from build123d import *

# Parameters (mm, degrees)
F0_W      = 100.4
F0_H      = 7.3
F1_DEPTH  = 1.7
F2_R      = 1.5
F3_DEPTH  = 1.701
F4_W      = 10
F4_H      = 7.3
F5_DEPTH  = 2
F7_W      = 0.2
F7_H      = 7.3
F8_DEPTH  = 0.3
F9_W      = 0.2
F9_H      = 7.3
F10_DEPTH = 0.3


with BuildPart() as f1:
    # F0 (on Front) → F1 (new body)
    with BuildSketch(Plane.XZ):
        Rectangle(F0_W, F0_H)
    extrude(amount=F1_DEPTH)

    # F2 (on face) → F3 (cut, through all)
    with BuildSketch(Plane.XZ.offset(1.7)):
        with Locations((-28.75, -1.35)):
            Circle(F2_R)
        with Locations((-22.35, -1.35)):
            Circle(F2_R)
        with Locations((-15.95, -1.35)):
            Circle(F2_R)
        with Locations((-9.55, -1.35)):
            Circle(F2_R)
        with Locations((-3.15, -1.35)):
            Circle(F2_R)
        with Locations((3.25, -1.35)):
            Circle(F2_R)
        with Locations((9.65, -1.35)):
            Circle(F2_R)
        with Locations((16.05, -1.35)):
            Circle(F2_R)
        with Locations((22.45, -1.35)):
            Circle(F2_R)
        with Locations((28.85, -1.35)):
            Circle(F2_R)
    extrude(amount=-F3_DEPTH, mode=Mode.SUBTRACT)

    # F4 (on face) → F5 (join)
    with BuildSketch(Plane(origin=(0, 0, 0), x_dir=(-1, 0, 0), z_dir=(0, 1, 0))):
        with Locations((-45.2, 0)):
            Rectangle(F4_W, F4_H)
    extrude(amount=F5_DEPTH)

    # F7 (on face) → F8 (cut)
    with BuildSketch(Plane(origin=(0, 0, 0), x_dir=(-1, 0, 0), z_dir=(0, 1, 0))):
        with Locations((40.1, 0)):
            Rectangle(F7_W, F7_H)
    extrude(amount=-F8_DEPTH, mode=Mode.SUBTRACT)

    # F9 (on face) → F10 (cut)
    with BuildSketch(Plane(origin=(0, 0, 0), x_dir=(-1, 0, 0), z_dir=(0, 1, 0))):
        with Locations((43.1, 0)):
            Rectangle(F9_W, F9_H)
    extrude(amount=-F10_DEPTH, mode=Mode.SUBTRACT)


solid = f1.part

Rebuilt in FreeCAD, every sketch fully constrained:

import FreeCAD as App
import Part
import Sketcher

V = App.Vector
Q = App.Units.Quantity

doc = App.newDocument("Part")
params = doc.addObject("Spreadsheet::Sheet", "Params")
for row, (alias, value) in enumerate([
    ("sketch1_width", "100.4 mm"),
    ("sketch1_height", "7.3 mm"),
    ("pad1_length", "1.7 mm"),
    ("sketch2_diameter", "3 mm"),
    ("sketch3_width", "10 mm"),
    ("sketch3_height", "7.3 mm"),
    ("pad2_length", "2 mm"),
    ("sketch4_width", "0.2 mm"),
    ("sketch4_height", "7.3 mm"),
    ("pocket2_length", "0.3 mm"),
    ("sketch5_width", "0.2 mm"),
    ("sketch5_height", "7.3 mm"),
    ("pocket3_length", "0.3 mm"),
], start=1):
    params.set(f"A{row}", alias)
    params.set(f"B{row}", "=" + value)
    params.setAlias(f"B{row}", alias)

body = doc.addObject("PartDesign::Body", "Body")

sketch1 = body.newObject("Sketcher::SketchObject", "Sketch")
sketch1.AttachmentSupport = (doc.getObject("XZ_Plane"), [""])
sketch1.MapMode = "FlatFace"
sketch1.addGeometry([
    Part.LineSegment(V(-50.2, 3.65, 0), V(-50.2, -3.65, 0)),
    Part.LineSegment(V(-50.2, -3.65, 0), V(50.2, -3.65, 0)),
    Part.LineSegment(V(50.2, -3.65, 0), V(50.2, 3.65, 0)),
    Part.LineSegment(V(50.2, 3.65, 0), V(-50.2, 3.65, 0)),
], False)
sketch1.addConstraint([
    Sketcher.Constraint("Coincident", 0, 2, 1, 1),
    Sketcher.Constraint("Coincident", 1, 2, 2, 1),
    Sketcher.Constraint("Coincident", 2, 2, 3, 1),
    Sketcher.Constraint("Coincident", 3, 2, 0, 1),
    Sketcher.Constraint("Vertical", 0),
    Sketcher.Constraint("Horizontal", 1),
    Sketcher.Constraint("Vertical", 2),
    Sketcher.Constraint("Horizontal", 3),
    Sketcher.Constraint("Symmetric", 0, 2, 2, 2, -1, 1),
    Sketcher.Constraint("DistanceX", 1, 1, 1, 2, Q("100.4 mm")),
    Sketcher.Constraint("DistanceY", 0, 2, 0, 1, Q("7.3 mm")),
])
sketch1.setExpression("Constraints[9]", "Params.sketch1_width")
sketch1.setExpression("Constraints[10]", "Params.sketch1_height")
pad1 = body.newObject("PartDesign::Pad", "Pad")
pad1.Profile = sketch1
pad1.setExpression("Length", "Params.pad1_length")

sketch2 = body.newObject("Sketcher::SketchObject", "Sketch001")
sketch2.AttachmentSupport = (doc.getObject("XZ_Plane"), [""])
sketch2.MapMode = "FlatFace"
sketch2.AttachmentOffset = App.Placement(V(0, 0, 1.7), App.Rotation())
sketch2.addGeometry([
    Part.Circle(V(-28.75, -1.35, 0), V(0, 0, 1), 1.5),
    Part.Circle(V(-22.35, -1.35, 0), V(0, 0, 1), 1.5),
    Part.Circle(V(-15.95, -1.35, 0), V(0, 0, 1), 1.5),
    Part.Circle(V(-9.55, -1.35, 0), V(0, 0, 1), 1.5),
    Part.Circle(V(-3.15, -1.35, 0), V(0, 0, 1), 1.5),
    Part.Circle(V(3.25, -1.35, 0), V(0, 0, 1), 1.5),
    Part.Circle(V(9.65, -1.35, 0), V(0, 0, 1), 1.5),
    Part.Circle(V(16.05, -1.35, 0), V(0, 0, 1), 1.5),
    Part.Circle(V(22.45, -1.35, 0), V(0, 0, 1), 1.5),
    Part.Circle(V(28.85, -1.35, 0), V(0, 0, 1), 1.5),
], False)
sketch2.addConstraint([
    Sketcher.Constraint("Equal", 0, 1),
    Sketcher.Constraint("Equal", 1, 2),
    Sketcher.Constraint("Equal", 2, 3),
    Sketcher.Constraint("Equal", 3, 4),
    Sketcher.Constraint("Equal", 4, 5),
    Sketcher.Constraint("Equal", 5, 6),
    Sketcher.Constraint("Equal", 6, 7),
    Sketcher.Constraint("Equal", 7, 8),
    Sketcher.Constraint("Equal", 8, 9),
    Sketcher.Constraint("Horizontal", 0, 3, 1, 3),
    Sketcher.Constraint("Horizontal", 1, 3, 2, 3),
    Sketcher.Constraint("Horizontal", 2, 3, 3, 3),
    Sketcher.Constraint("Horizontal", 3, 3, 4, 3),
    Sketcher.Constraint("Horizontal", 4, 3, 5, 3),
    Sketcher.Constraint("Horizontal", 5, 3, 6, 3),
    Sketcher.Constraint("Horizontal", 6, 3, 7, 3),
    Sketcher.Constraint("Horizontal", 7, 3, 8, 3),
    Sketcher.Constraint("Horizontal", 8, 3, 9, 3),
    Sketcher.Constraint("Diameter", 0, Q("3 mm")),
    Sketcher.Constraint("DistanceX", 0, 3, 5, 3, Q("32 mm")),
    Sketcher.Constraint("DistanceX", 1, 3, 6, 3, Q("32 mm")),
    Sketcher.Constraint("DistanceX", 2, 3, 7, 3, Q("32 mm")),
    Sketcher.Constraint("DistanceX", 3, 3, 8, 3, Q("32 mm")),
    Sketcher.Constraint("DistanceX", 4, 3, 9, 3, Q("32 mm")),
    Sketcher.Constraint("DistanceX", 0, 3, 1, 3, Q("6.4 mm")),
    Sketcher.Constraint("DistanceX", 1, 3, 2, 3, Q("6.4 mm")),
    Sketcher.Constraint("DistanceX", 2, 3, 3, 3, Q("6.4 mm")),
    Sketcher.Constraint("DistanceX", 3, 3, 4, 3, Q("6.4 mm")),
    Sketcher.Constraint("DistanceX", 0, 3, -1, 1, Q("28.75 mm")),
    Sketcher.Constraint("DistanceY", 0, 3, -1, 1, Q("1.35 mm")),
])
sketch2.setExpression("Constraints[18]", "Params.sketch2_diameter")
pocket1 = body.newObject("PartDesign::Pocket", "Pocket")
pocket1.Profile = sketch2
pocket1.Type = "ThroughAll"

sketch3 = body.newObject("Sketcher::SketchObject", "Sketch002")
sketch3.AttachmentSupport = (doc.getObject("XZ_Plane"), [""])
sketch3.MapMode = "FlatFace"
sketch3.addGeometry([
    Part.LineSegment(V(50.2, 3.65, 0), V(50.2, -3.65, 0)),
    Part.LineSegment(V(50.2, -3.65, 0), V(40.2, -3.65, 0)),
    Part.LineSegment(V(40.2, -3.65, 0), V(40.2, 3.65, 0)),
    Part.LineSegment(V(40.2, 3.65, 0), V(50.2, 3.65, 0)),
], False)
sketch3.addConstraint([
    Sketcher.Constraint("Coincident", 0, 2, 1, 1),
    Sketcher.Constraint("Coincident", 1, 2, 2, 1),
    Sketcher.Constraint("Coincident", 2, 2, 3, 1),
    Sketcher.Constraint("Coincident", 3, 2, 0, 1),
    Sketcher.Constraint("Vertical", 0),
    Sketcher.Constraint("Horizontal", 1),
    Sketcher.Constraint("Vertical", 2),
    Sketcher.Constraint("Horizontal", 3),
    Sketcher.Constraint("DistanceX", 1, 2, 1, 1, Q("10 mm")),
    Sketcher.Constraint("DistanceY", 0, 2, 0, 1, Q("7.3 mm")),
    Sketcher.Constraint("DistanceX", -1, 1, 0, 2, Q("50.2 mm")),
    Sketcher.Constraint("DistanceY", 0, 2, -1, 1, Q("3.65 mm")),
])
sketch3.setExpression("Constraints[8]", "Params.sketch3_width")
sketch3.setExpression("Constraints[9]", "Params.sketch3_height")
pad2 = body.newObject("PartDesign::Pad", "Pad001")
pad2.Profile = sketch3
pad2.setExpression("Length", "Params.pad2_length")
pad2.Reversed = True

sketch4 = body.newObject("Sketcher::SketchObject", "Sketch003")
sketch4.AttachmentSupport = (doc.getObject("XZ_Plane"), [""])
sketch4.MapMode = "FlatFace"
sketch4.addGeometry([
    Part.LineSegment(V(-40, 3.65, 0), V(-40, -3.65, 0)),
    Part.LineSegment(V(-40, -3.65, 0), V(-40.2, -3.65, 0)),
    Part.LineSegment(V(-40.2, -3.65, 0), V(-40.2, 3.65, 0)),
    Part.LineSegment(V(-40.2, 3.65, 0), V(-40, 3.65, 0)),
], False)
sketch4.addConstraint([
    Sketcher.Constraint("Coincident", 0, 2, 1, 1),
    Sketcher.Constraint("Coincident", 1, 2, 2, 1),
    Sketcher.Constraint("Coincident", 2, 2, 3, 1),
    Sketcher.Constraint("Coincident", 3, 2, 0, 1),
    Sketcher.Constraint("Vertical", 0),
    Sketcher.Constraint("Horizontal", 1),
    Sketcher.Constraint("Vertical", 2),
    Sketcher.Constraint("Horizontal", 3),
    Sketcher.Constraint("DistanceX", 1, 2, 1, 1, Q("0.2 mm")),
    Sketcher.Constraint("DistanceY", 0, 2, 0, 1, Q("7.3 mm")),
    Sketcher.Constraint("DistanceX", 0, 2, -1, 1, Q("40 mm")),
    Sketcher.Constraint("DistanceY", 0, 2, -1, 1, Q("3.65 mm")),
])
sketch4.setExpression("Constraints[8]", "Params.sketch4_width")
sketch4.setExpression("Constraints[9]", "Params.sketch4_height")
pocket2 = body.newObject("PartDesign::Pocket", "Pocket001")
pocket2.Profile = sketch4
pocket2.setExpression("Length", "Params.pocket2_length")
pocket2.Reversed = True

sketch5 = body.newObject("Sketcher::SketchObject", "Sketch004")
sketch5.AttachmentSupport = (doc.getObject("XZ_Plane"), [""])
sketch5.MapMode = "FlatFace"
sketch5.addGeometry([
    Part.LineSegment(V(-43, 3.65, 0), V(-43, -3.65, 0)),
    Part.LineSegment(V(-43, -3.65, 0), V(-43.2, -3.65, 0)),
    Part.LineSegment(V(-43.2, -3.65, 0), V(-43.2, 3.65, 0)),
    Part.LineSegment(V(-43.2, 3.65, 0), V(-43, 3.65, 0)),
], False)
sketch5.addConstraint([
    Sketcher.Constraint("Coincident", 0, 2, 1, 1),
    Sketcher.Constraint("Coincident", 1, 2, 2, 1),
    Sketcher.Constraint("Coincident", 2, 2, 3, 1),
    Sketcher.Constraint("Coincident", 3, 2, 0, 1),
    Sketcher.Constraint("Vertical", 0),
    Sketcher.Constraint("Horizontal", 1),
    Sketcher.Constraint("Vertical", 2),
    Sketcher.Constraint("Horizontal", 3),
    Sketcher.Constraint("DistanceX", 1, 2, 1, 1, Q("0.2 mm")),
    Sketcher.Constraint("DistanceY", 0, 2, 0, 1, Q("7.3 mm")),
    Sketcher.Constraint("DistanceX", 0, 2, -1, 1, Q("43 mm")),
    Sketcher.Constraint("DistanceY", 0, 2, -1, 1, Q("3.65 mm")),
])
sketch5.setExpression("Constraints[8]", "Params.sketch5_width")
sketch5.setExpression("Constraints[9]", "Params.sketch5_height")
pocket3 = body.newObject("PartDesign::Pocket", "Pocket002")
pocket3.Profile = sketch5
pocket3.setExpression("Length", "Params.pocket3_length")
pocket3.Reversed = True

doc.recompute()
